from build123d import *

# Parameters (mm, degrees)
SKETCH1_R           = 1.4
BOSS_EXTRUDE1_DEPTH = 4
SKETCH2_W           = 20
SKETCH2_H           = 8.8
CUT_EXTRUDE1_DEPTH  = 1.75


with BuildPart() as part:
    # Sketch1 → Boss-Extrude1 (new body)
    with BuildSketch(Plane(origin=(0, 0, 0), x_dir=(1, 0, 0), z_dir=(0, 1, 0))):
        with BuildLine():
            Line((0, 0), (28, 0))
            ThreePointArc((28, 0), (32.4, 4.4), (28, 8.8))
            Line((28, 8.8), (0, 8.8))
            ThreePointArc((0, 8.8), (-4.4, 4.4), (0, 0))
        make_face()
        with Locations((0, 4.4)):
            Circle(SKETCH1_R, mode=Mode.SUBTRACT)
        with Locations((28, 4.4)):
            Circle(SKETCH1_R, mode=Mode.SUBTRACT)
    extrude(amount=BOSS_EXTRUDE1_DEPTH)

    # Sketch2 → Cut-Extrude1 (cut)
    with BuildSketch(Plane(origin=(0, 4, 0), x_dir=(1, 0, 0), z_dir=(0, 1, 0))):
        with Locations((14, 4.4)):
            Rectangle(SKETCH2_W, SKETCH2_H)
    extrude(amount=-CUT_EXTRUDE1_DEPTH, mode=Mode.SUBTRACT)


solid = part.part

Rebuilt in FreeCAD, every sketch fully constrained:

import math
import FreeCAD as App
import Part
import Sketcher
from FreeCAD import Vector

doc = App.newDocument("Part")
body = doc.addObject("PartDesign::Body", "Body")

# Sketch on XZ plane
sketch1 = body.newObject("Sketcher::SketchObject", "Sketch")
sketch1.AttachmentSupport = (doc.getObject("XZ_Plane"), [""])
sketch1.MapMode = "FlatFace"
sketch1.addGeometry(Part.LineSegment(Vector(0, 0, 0), Vector(28, 0, 0)), False)
sketch1.addGeometry(Part.ArcOfCircle(Part.Circle(Vector(28, -4.4, 0), Vector(0, 0, 1), 4.4), math.radians(-90), math.radians(90)), False)
sketch1.addGeometry(Part.LineSegment(Vector(28, -8.8, 0), Vector(0, -8.8, 0)), False)
sketch1.addGeometry(Part.ArcOfCircle(Part.Circle(Vector(0, -4.4, 0), Vector(0, 0, 1), 4.4), math.radians(90), math.radians(270)), False)
sketch1.addGeometry(Part.Circle(Vector(0, -4.4, 0), Vector(0, 0, 1), 1.4), False)
sketch1.addGeometry(Part.Circle(Vector(28, -4.4, 0), Vector(0, 0, 1), 1.4), False)
sketch1.addConstraint(Sketcher.Constraint("Tangent", 0, 2, 1, 2))
sketch1.addConstraint(Sketcher.Constraint("Tangent", 1, 1, 2, 1))
sketch1.addConstraint(Sketcher.Constraint("Tangent", 2, 2, 3, 2))
sketch1.addConstraint(Sketcher.Constraint("Tangent", 3, 1, 0, 1))
sketch1.addConstraint(Sketcher.Constraint("Horizontal", 0))
sketch1.addConstraint(Sketcher.Constraint("Horizontal", 2))
sketch1.addConstraint(Sketcher.Constraint("Coincident", 3, 1, -1, 1))
sketch1.addConstraint(Sketcher.Constraint("Coincident", 4, 3, 3, 3))
sketch1.addConstraint(Sketcher.Constraint("Coincident", 5, 3, 1, 3))
sketch1.addConstraint(Sketcher.Constraint("Equal", 4, 5))
sketch1.addConstraint(Sketcher.Constraint("Diameter", 4, 2.8))
sketch1.addConstraint(Sketcher.Constraint("Radius", 1, 4.4))
sketch1.addConstraint(Sketcher.Constraint("DistanceX", 0, 1, 0, 2, 28.0))
pad1 = body.newObject("PartDesign::Pad", "Pad")
pad1.Profile = sketch1
pad1.Length = 4
pad1.Reversed = True

# Sketch on XZ plane
sketch2 = body.newObject("Sketcher::SketchObject", "Sketch001")
sketch2.AttachmentSupport = (doc.getObject("XZ_Plane"), [""])
sketch2.MapMode = "FlatFace"
sketch2.AttachmentOffset = App.Placement(Vector(0, 0, -4), App.Rotation())
sketch2.addGeometry(Part.LineSegment(Vector(4, -8.8, 0), Vector(4, 0, 0)), False)
sketch2.addGeometry(Part.LineSegment(Vector(4, 0, 0), Vector(24, 0, 0)), False)
sketch2.addGeometry(Part.LineSegment(Vector(24, 0, 0), Vector(24, -8.8, 0)), False)
sketch2.addGeometry(Part.LineSegment(Vector(24, -8.8, 0), Vector(4, -8.8, 0)), False)
sketch2.addConstraint(Sketcher.Constraint("Coincident", 0, 2, 1, 1))
sketch2.addConstraint(Sketcher.Constraint("Coincident", 1, 2, 2, 1))
sketch2.addConstraint(Sketcher.Constraint("Coincident", 2, 2, 3, 1))
sketch2.addConstraint(Sketcher.Constraint("Coincident", 3, 2, 0, 1))
sketch2.addConstraint(Sketcher.Constraint("Vertical", 0))
sketch2.addConstraint(Sketcher.Constraint("Horizontal", 1))
sketch2.addConstraint(Sketcher.Constraint("Vertical", 2))
sketch2.addConstraint(Sketcher.Constraint("Horizontal", 3))
sketch2.addConstraint(Sketcher.Constraint("PointOnObject", 0, 2, -1))
sketch2.addConstraint(Sketcher.Constraint("DistanceX", 1, 1, 1, 2, 20.0))
sketch2.addConstraint(Sketcher.Constraint("DistanceY", 0, 1, 0, 2, 8.8))
sketch2.addConstraint(Sketcher.Constraint("DistanceX", -1, 1, 0, 2, 4.0))
pocket1 = body.newObject("PartDesign::Pocket", "Pocket")
pocket1.Profile = sketch2
pocket1.Length = 1.75
pocket1.Reversed = True

doc.recompute()
